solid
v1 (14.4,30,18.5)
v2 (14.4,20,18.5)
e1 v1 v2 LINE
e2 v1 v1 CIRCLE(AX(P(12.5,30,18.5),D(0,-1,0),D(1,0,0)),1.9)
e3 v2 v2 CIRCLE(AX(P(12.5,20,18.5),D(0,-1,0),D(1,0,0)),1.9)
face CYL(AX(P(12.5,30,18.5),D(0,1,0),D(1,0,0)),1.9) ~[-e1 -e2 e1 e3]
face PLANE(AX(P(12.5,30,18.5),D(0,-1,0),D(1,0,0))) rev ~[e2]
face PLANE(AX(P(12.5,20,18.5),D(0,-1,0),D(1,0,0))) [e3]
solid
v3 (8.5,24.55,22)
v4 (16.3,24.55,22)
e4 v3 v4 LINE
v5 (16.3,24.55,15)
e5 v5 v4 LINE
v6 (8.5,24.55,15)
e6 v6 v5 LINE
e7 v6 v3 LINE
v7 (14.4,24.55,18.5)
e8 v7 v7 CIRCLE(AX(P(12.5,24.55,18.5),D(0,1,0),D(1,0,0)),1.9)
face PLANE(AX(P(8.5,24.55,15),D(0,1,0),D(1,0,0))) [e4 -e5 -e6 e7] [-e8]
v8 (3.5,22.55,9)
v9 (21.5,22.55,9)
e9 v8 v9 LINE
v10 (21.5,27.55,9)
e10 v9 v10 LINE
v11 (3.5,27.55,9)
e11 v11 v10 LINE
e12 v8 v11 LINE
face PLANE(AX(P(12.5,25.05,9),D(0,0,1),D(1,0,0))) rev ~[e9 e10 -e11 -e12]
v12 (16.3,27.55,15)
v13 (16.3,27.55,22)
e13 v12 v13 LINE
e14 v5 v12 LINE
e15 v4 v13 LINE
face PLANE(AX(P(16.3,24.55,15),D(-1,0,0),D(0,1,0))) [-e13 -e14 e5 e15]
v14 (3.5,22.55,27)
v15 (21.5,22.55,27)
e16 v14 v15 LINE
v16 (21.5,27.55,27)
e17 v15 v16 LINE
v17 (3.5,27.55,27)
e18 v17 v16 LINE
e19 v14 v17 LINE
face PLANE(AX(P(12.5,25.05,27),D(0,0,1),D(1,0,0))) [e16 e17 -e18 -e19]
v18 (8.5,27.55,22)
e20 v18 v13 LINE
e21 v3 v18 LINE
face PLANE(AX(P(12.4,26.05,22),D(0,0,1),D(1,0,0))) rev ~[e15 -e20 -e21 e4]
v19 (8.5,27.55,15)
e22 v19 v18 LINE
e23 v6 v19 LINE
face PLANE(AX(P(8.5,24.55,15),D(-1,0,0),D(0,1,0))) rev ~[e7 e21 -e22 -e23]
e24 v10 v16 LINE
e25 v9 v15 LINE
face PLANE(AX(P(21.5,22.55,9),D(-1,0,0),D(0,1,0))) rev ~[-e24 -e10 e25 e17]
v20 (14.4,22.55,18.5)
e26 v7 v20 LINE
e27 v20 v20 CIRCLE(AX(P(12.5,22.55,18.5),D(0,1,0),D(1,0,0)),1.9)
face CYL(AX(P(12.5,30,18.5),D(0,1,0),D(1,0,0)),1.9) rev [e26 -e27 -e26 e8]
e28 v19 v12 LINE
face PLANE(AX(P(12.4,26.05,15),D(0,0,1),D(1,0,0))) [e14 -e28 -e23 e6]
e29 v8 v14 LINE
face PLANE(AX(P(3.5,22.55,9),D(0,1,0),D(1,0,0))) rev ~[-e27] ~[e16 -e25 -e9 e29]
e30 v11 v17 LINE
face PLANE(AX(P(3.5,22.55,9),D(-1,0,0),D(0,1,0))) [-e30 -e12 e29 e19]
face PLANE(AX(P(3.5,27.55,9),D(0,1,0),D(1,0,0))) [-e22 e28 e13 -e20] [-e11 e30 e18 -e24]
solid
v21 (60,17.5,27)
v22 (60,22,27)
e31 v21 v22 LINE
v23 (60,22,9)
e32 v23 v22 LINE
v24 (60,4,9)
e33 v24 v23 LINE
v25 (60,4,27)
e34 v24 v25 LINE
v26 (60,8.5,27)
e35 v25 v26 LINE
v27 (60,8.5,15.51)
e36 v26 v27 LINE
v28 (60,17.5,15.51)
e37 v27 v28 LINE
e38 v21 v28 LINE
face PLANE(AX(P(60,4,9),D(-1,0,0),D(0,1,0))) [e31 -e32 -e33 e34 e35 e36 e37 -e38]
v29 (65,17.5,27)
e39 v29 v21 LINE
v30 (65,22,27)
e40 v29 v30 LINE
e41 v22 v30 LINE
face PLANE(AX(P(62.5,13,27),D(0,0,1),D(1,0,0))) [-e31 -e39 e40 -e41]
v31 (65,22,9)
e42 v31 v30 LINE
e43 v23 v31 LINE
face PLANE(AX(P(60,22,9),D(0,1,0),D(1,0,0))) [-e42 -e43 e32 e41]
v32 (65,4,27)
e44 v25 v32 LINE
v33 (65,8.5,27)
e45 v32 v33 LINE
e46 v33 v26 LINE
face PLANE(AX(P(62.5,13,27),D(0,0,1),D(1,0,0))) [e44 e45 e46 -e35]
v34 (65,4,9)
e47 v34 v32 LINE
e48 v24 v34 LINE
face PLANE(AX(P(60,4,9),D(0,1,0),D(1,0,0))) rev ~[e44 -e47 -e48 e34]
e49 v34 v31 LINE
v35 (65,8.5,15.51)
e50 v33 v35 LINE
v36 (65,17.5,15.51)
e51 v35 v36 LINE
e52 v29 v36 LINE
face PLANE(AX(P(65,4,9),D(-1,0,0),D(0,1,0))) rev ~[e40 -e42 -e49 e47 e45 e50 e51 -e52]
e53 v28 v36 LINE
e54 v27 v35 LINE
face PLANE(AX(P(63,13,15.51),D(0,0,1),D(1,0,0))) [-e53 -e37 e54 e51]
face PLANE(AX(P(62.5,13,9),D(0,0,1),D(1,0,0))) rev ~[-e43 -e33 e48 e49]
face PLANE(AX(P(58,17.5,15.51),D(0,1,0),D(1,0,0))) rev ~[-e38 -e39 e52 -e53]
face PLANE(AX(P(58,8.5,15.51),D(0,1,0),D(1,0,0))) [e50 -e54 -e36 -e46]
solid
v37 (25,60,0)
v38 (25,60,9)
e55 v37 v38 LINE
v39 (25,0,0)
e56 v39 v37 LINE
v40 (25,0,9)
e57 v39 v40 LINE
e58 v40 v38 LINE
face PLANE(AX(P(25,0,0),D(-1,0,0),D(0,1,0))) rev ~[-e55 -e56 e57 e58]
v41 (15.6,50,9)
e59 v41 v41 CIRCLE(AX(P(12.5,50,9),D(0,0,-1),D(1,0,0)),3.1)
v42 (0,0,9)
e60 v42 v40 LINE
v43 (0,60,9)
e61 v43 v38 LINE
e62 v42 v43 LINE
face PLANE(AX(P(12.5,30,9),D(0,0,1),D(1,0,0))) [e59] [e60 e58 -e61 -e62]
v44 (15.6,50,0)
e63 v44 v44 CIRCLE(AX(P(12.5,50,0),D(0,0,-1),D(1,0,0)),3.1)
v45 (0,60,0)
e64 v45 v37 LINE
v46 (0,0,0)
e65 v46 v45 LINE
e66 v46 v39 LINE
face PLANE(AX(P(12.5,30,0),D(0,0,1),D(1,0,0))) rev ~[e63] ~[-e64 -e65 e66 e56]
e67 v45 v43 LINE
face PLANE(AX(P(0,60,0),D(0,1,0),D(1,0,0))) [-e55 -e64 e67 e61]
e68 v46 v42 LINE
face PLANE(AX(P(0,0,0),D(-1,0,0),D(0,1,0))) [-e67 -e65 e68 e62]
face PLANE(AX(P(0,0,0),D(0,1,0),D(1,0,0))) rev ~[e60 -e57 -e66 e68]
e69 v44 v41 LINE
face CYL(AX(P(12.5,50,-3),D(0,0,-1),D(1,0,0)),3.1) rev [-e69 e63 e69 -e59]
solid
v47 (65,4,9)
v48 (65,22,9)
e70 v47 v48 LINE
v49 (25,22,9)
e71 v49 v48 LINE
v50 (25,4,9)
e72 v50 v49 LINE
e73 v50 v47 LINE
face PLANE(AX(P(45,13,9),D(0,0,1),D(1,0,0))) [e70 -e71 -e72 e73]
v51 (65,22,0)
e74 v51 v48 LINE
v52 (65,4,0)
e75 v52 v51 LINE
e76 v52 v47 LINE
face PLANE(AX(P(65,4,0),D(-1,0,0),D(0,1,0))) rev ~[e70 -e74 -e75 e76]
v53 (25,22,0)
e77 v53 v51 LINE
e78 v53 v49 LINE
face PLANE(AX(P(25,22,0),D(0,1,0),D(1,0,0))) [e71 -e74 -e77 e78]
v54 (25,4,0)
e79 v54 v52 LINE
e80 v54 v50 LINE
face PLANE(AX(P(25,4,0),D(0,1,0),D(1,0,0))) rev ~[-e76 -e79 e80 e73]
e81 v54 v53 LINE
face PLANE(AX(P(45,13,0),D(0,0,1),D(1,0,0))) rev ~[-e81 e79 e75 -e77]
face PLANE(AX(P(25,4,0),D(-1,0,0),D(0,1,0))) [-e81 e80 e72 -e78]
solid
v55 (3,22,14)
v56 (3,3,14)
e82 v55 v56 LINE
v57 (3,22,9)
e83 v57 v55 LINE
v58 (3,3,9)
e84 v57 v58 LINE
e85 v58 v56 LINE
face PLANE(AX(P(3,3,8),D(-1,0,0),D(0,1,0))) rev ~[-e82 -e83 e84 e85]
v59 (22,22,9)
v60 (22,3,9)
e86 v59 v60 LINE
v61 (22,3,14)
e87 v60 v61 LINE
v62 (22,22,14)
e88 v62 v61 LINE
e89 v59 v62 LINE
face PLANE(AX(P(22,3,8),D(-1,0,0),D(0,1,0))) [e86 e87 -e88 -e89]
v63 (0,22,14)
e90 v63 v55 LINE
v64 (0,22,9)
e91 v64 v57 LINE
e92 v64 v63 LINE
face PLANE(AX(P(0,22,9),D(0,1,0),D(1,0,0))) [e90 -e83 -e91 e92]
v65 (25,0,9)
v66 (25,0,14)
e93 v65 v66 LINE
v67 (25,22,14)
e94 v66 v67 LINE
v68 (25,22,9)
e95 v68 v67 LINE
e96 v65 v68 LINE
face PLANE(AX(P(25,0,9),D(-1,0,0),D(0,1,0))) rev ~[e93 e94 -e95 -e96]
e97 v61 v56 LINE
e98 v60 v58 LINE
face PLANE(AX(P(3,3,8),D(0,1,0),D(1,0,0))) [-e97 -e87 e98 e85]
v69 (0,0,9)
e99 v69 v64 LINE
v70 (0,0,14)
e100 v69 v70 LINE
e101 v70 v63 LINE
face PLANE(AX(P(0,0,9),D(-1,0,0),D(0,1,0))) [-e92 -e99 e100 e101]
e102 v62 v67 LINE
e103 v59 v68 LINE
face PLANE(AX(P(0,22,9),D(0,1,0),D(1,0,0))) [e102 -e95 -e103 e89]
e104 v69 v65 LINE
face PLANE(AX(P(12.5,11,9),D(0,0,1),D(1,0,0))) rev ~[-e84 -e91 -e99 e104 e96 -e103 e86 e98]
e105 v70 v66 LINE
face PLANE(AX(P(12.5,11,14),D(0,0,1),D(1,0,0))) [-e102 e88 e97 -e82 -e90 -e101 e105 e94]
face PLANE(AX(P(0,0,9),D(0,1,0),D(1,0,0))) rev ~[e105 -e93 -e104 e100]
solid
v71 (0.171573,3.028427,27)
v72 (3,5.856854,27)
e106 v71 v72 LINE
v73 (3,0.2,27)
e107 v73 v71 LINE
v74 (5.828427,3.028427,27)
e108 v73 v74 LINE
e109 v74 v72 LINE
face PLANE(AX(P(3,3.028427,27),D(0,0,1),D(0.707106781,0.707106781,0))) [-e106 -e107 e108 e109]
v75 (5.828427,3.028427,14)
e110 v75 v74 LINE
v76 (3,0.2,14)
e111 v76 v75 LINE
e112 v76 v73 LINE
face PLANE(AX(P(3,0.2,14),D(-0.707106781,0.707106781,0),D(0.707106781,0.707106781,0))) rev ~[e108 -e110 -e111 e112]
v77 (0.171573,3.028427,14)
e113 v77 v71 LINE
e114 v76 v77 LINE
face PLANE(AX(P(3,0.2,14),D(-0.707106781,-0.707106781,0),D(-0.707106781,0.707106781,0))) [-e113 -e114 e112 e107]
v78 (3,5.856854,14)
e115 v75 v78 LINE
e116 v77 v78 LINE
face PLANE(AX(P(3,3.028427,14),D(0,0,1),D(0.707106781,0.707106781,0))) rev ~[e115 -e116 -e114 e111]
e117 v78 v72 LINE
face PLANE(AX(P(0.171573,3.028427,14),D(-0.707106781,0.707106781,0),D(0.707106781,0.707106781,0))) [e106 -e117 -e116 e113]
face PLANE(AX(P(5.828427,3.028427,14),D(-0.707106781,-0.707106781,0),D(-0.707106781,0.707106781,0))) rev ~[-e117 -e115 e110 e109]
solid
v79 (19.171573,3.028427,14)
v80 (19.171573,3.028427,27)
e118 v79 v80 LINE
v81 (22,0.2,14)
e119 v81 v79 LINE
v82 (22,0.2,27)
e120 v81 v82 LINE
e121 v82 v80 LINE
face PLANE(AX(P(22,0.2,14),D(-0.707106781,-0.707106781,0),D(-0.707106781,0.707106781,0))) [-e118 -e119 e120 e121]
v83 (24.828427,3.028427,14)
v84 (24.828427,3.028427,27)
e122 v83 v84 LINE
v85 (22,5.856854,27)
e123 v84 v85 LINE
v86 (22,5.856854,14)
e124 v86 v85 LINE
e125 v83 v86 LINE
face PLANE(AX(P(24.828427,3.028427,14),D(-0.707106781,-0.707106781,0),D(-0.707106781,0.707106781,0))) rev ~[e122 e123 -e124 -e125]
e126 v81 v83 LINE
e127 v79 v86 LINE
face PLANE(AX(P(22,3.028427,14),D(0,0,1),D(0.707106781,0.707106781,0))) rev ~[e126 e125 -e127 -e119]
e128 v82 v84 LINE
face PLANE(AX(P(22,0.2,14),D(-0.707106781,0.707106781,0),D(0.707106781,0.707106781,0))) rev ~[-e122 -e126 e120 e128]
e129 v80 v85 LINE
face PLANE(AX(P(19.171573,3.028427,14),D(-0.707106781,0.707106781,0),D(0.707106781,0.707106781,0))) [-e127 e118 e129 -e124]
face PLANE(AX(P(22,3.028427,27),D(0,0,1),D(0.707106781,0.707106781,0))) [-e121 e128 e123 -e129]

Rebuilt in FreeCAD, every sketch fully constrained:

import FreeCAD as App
import Part
import Sketcher

V = App.Vector

doc = App.newDocument("Part")
body = doc.addObject("PartDesign::Body", "Body")

sketch1 = body.newObject("Sketcher::SketchObject", "Sketch")
sketch1.AttachmentSupport = (doc.getObject("XY_Plane"), [""])
sketch1.MapMode = "FlatFace"
sketch1.AttachmentOffset = App.Placement(V(0, 0, 8), App.Rotation())
sketch1.addGeometry([
    Part.LineSegment(V(3, 25, 0), V(3, 3, 0)),
    Part.LineSegment(V(3, 3, 0), V(22, 3, 0)),
    Part.LineSegment(V(22, 3, 0), V(22, 25, 0)),
    Part.LineSegment(V(22, 25, 0), V(3, 25, 0)),
], False)
sketch1.addConstraint([
    Sketcher.Constraint("Coincident", 0, 2, 1, 1),
    Sketcher.Constraint("Coincident", 1, 2, 2, 1),
    Sketcher.Constraint("Coincident", 2, 2, 3, 1),
    Sketcher.Constraint("Coincident", 3, 2, 0, 1),
    Sketcher.Constraint("Vertical", 0),
    Sketcher.Constraint("Horizontal", 1),
    Sketcher.Constraint("Vertical", 2),
    Sketcher.Constraint("Horizontal", 3),
    Sketcher.Constraint("DistanceX", 1, 1, 1, 2, 19.0),
    Sketcher.Constraint("DistanceY", 0, 2, 0, 1, 22.0),
    Sketcher.Constraint("DistanceX", -1, 1, 0, 2, 3.0),
    Sketcher.Constraint("DistanceY", -1, 1, 0, 2, 3.0),
])
pad1 = body.newObject("PartDesign::Pad", "Pad")
pad1.Profile = sketch1
pad1.Length = 10
body2 = doc.addObject("PartDesign::Body", "Body001")

sketch2 = body2.newObject("Sketcher::SketchObject", "Sketch001")
sketch2.AttachmentSupport = (doc.getObject("XY_Plane001"), [""])
sketch2.MapMode = "FlatFace"
sketch2.AttachmentOffset = App.Placement(V(0, 0, 9), App.Rotation())
sketch2.addGeometry([
    Part.LineSegment(V(0, 22, 0), V(0, 0, 0)),
    Part.LineSegment(V(0, 0, 0), V(25, 0, 0)),
    Part.LineSegment(V(25, 0, 0), V(25, 22, 0)),
    Part.LineSegment(V(25, 22, 0), V(0, 22, 0)),
], False)
sketch2.addConstraint([
    Sketcher.Constraint("Coincident", 0, 2, 1, 1),
    Sketcher.Constraint("Coincident", 1, 2, 2, 1),
    Sketcher.Constraint("Coincident", 2, 2, 3, 1),
    Sketcher.Constraint("Coincident", 3, 2, 0, 1),
    Sketcher.Constraint("Vertical", 0),
    Sketcher.Constraint("Horizontal", 1),
    Sketcher.Constraint("Vertical", 2),
    Sketcher.Constraint("Horizontal", 3),
    Sketcher.Constraint("Coincident", 0, 2, -1, 1),
    Sketcher.Constraint("DistanceX", 1, 1, 1, 2, 25.0),
    Sketcher.Constraint("DistanceY", 0, 2, 0, 1, 22.0),
])
pad2 = body2.newObject("PartDesign::Pad", "Pad001")
pad2.Profile = sketch2
pad2.Length = 5
doc.recompute()

boolean = body2.newObject("PartDesign::Boolean", "Boolean")
boolean.Type = "Cut"
boolean.addObjects([body])
body3 = doc.addObject("PartDesign::Body", "Body002")

sketch3 = body3.newObject("Sketcher::SketchObject", "Sketch002")
sketch3.AttachmentSupport = (doc.getObject("XY_Plane002"), [""])
sketch3.MapMode = "FlatFace"
sketch3.AttachmentOffset = App.Placement(V(0, 0, -3), App.Rotation())
sketch3.addGeometry(Part.Circle(V(12.5, 50, 0), V(0, 0, 1), 3.1), False)
sketch3.addConstraint([
    Sketcher.Constraint("Diameter", 0, 6.2),
    Sketcher.Constraint("DistanceY", -1, 1, 0, 3, 50.0),
    Sketcher.Constraint("DistanceX", -1, 1, 0, 3, 12.5),
])
pad3 = body3.newObject("PartDesign::Pad", "Pad002")
pad3.Profile = sketch3
pad3.Length = 15
body4 = doc.addObject("PartDesign::Body", "Body003")

sketch4 = body4.newObject("Sketcher::SketchObject", "Sketch003")
sketch4.AttachmentSupport = (doc.getObject("XY_Plane003"), [""])
sketch4.MapMode = "FlatFace"
sketch4.addGeometry([
    Part.LineSegment(V(0, 60, 0), V(0, 0, 0)),
    Part.LineSegment(V(0, 0, 0), V(25, 0, 0)),
    Part.LineSegment(V(25, 0, 0), V(25, 60, 0)),
    Part.LineSegment(V(25, 60, 0), V(0, 60, 0)),
], False)
sketch4.addConstraint([
    Sketcher.Constraint("Coincident", 0, 2, 1, 1),
    Sketcher.Constraint("Coincident", 1, 2, 2, 1),
    Sketcher.Constraint("Coincident", 2, 2, 3, 1),
    Sketcher.Constraint("Coincident", 3, 2, 0, 1),
    Sketcher.Constraint("Vertical", 0),
    Sketcher.Constraint("Horizontal", 1),
    Sketcher.Constraint("Vertical", 2),
    Sketcher.Constraint("Horizontal", 3),
    Sketcher.Constraint("Coincident", 0, 2, -1, 1),
    Sketcher.Constraint("DistanceX", 1, 1, 1, 2, 25.0),
    Sketcher.Constraint("DistanceY", 0, 2, 0, 1, 60.0),
])
pad4 = body4.newObject("PartDesign::Pad", "Pad003")
pad4.Profile = sketch4
pad4.Length = 9
doc.recompute()

boolean2 = body4.newObject("PartDesign::Boolean", "Boolean001")
boolean2.Type = "Cut"
boolean2.addObjects([body3])
body5 = doc.addObject("PartDesign::Body", "Body004")

sketch5 = body5.newObject("Sketcher::SketchObject", "Sketch004")
sketch5.AttachmentSupport = (doc.getObject("XY_Plane004"), [""])
sketch5.MapMode = "FlatFace"
sketch5.addGeometry([
    Part.LineSegment(V(0, 4, 0), V(0, 0, 0)),
    Part.LineSegment(V(0, 0, 0), V(4, 0, 0)),
    Part.LineSegment(V(4, 0, 0), V(4, 4, 0)),
    Part.LineSegment(V(4, 4, 0), V(0, 4, 0)),
], False)
sketch5.addConstraint([
    Sketcher.Constraint("Coincident", 0, 2, 1, 1),
    Sketcher.Constraint("Coincident", 1, 2, 2, 1),
    Sketcher.Constraint("Coincident", 2, 2, 3, 1),
    Sketcher.Constraint("Coincident", 3, 2, 0, 1),
    Sketcher.Constraint("Vertical", 0),
    Sketcher.Constraint("Horizontal", 1),
    Sketcher.Constraint("Vertical", 2),
    Sketcher.Constraint("Horizontal", 3),
    Sketcher.Constraint("Coincident", 0, 2, -1, 1),
    Sketcher.Constraint("Equal", 3, 0),
    Sketcher.Constraint("DistanceX", 1, 1, 1, 2, 4.0),
])
pad5 = body5.newObject("PartDesign::Pad", "Pad004")
pad5.Profile = sketch5
pad5.Length = 13
body6 = doc.addObject("PartDesign::Body", "Body005")
doc.recompute()

body5.Placement = App.Placement(V(3, 0.2, 14), App.Rotation(V(0, 0, 1), 45))
boolean3 = body6.newObject("PartDesign::Boolean", "Boolean002")
boolean3.Type = "Fuse"
boolean3.addObjects([body5])
body7 = doc.addObject("PartDesign::Body", "Body006")

sketch6 = body7.newObject("Sketcher::SketchObject", "Sketch005")
sketch6.AttachmentSupport = (doc.getObject("XY_Plane006"), [""])
sketch6.MapMode = "FlatFace"
sketch6.addGeometry([
    Part.LineSegment(V(0, 4, 0), V(0, 0, 0)),
    Part.LineSegment(V(0, 0, 0), V(4, 0, 0)),
    Part.LineSegment(V(4, 0, 0), V(4, 4, 0)),
    Part.LineSegment(V(4, 4, 0), V(0, 4, 0)),
], False)
sketch6.addConstraint([
    Sketcher.Constraint("Coincident", 0, 2, 1, 1),
    Sketcher.Constraint("Coincident", 1, 2, 2, 1),
    Sketcher.Constraint("Coincident", 2, 2, 3, 1),
    Sketcher.Constraint("Coincident", 3, 2, 0, 1),
    Sketcher.Constraint("Vertical", 0),
    Sketcher.Constraint("Horizontal", 1),
    Sketcher.Constraint("Vertical", 2),
    Sketcher.Constraint("Horizontal", 3),
    Sketcher.Constraint("Coincident", 0, 2, -1, 1),
    Sketcher.Constraint("Equal", 3, 0),
    Sketcher.Constraint("DistanceX", 1, 1, 1, 2, 4.0),
])
pad6 = body7.newObject("PartDesign::Pad", "Pad005")
pad6.Profile = sketch6
pad6.Length = 13
body8 = doc.addObject("PartDesign::Body", "Body007")
doc.recompute()

body7.Placement = App.Placement(V(22, 0.2, 14), App.Rotation(V(0, 0, 1), 45))
boolean4 = body8.newObject("PartDesign::Boolean", "Boolean003")
boolean4.Type = "Fuse"
boolean4.addObjects([body7])
body9 = doc.addObject("PartDesign::Body", "Body008")

sketch7 = body9.newObject("Sketcher::SketchObject", "Sketch006")
sketch7.AttachmentSupport = (doc.getObject("XZ_Plane008"), [""])
sketch7.MapMode = "FlatFace"
sketch7.AttachmentOffset = App.Placement(V(0, 0, -30), App.Rotation())
sketch7.addGeometry(Part.Circle(V(12.5, 18.5, 0), V(0, 0, 1), 1.9), False)
sketch7.addConstraint([
    Sketcher.Constraint("Diameter", 0, 3.8),
    Sketcher.Constraint("DistanceX", -1, 1, 0, 3, 12.5),
    Sketcher.Constraint("DistanceY", -1, 1, 0, 3, 18.5),
])
pad7 = body9.newObject("PartDesign::Pad", "Pad006")
pad7.Profile = sketch7
pad7.Length = 10
body10 = doc.addObject("PartDesign::Body", "Body009")

sketch8 = body10.newObject("Sketcher::SketchObject", "Sketch007")
sketch8.AttachmentSupport = (doc.getObject("XY_Plane009"), [""])
sketch8.MapMode = "FlatFace"
sketch8.AttachmentOffset = App.Placement(V(0, 0, 15), App.Rotation())
sketch8.addGeometry([
    Part.LineSegment(V(8.5, 27.6, 0), V(8.5, 24.6, 0)),
    Part.LineSegment(V(8.5, 24.6, 0), V(16.3, 24.6, 0)),
    Part.LineSegment(V(16.3, 24.6, 0), V(16.3, 27.6, 0)),
    Part.LineSegment(V(16.3, 27.6, 0), V(8.5, 27.6, 0)),
], False)
sketch8.addConstraint([
    Sketcher.Constraint("Coincident", 0, 2, 1, 1),
    Sketcher.Constraint("Coincident", 1, 2, 2, 1),
    Sketcher.Constraint("Coincident", 2, 2, 3, 1),
    Sketcher.Constraint("Coincident", 3, 2, 0, 1),
    Sketcher.Constraint("Vertical", 0),
    Sketcher.Constraint("Horizontal", 1),
    Sketcher.Constraint("Vertical", 2),
    Sketcher.Constraint("Horizontal", 3),
    Sketcher.Constraint("DistanceY", 0, 2, 0, 1, 3.0),
    Sketcher.Constraint("DistanceX", 1, 1, 1, 2, 7.8),
    Sketcher.Constraint("DistanceX", -1, 1, 0, 2, 8.5),
    Sketcher.Constraint("DistanceY", -1, 1, 0, 2, 24.55),
])
pad8 = body10.newObject("PartDesign::Pad", "Pad007")
pad8.Profile = sketch8
pad8.Length = 7
body11 = doc.addObject("PartDesign::Body", "Body010")

sketch9 = body11.newObject("Sketcher::SketchObject", "Sketch008")
sketch9.AttachmentSupport = (doc.getObject("XY_Plane010"), [""])
sketch9.MapMode = "FlatFace"
sketch9.AttachmentOffset = App.Placement(V(0, 0, 9), App.Rotation())
sketch9.addGeometry([
    Part.LineSegment(V(4, 28, 0), V(4, 23, 0)),
    Part.LineSegment(V(4, 23, 0), V(22, 23, 0)),
    Part.LineSegment(V(22, 23, 0), V(22, 28, 0)),
    Part.LineSegment(V(22, 28, 0), V(4, 28, 0)),
], False)
sketch9.addConstraint([
    Sketcher.Constraint("Coincident", 0, 2, 1, 1),
    Sketcher.Constraint("Coincident", 1, 2, 2, 1),
    Sketcher.Constraint("Coincident", 2, 2, 3, 1),
    Sketcher.Constraint("Coincident", 3, 2, 0, 1),
    Sketcher.Constraint("Vertical", 0),
    Sketcher.Constraint("Horizontal", 1),
    Sketcher.Constraint("Vertical", 2),
    Sketcher.Constraint("Horizontal", 3),
    Sketcher.Constraint("DistanceX", 1, 1, 1, 2, 18.0),
    Sketcher.Constraint("DistanceY", 0, 2, 0, 1, 5.0),
    Sketcher.Constraint("DistanceX", -1, 1, 0, 2, 3.5),
    Sketcher.Constraint("DistanceY", -1, 1, 0, 2, 22.55),
])
pad9 = body11.newObject("PartDesign::Pad", "Pad008")
pad9.Profile = sketch9
pad9.Length = 18
doc.recompute()

boolean5 = body11.newObject("PartDesign::Boolean", "Boolean004")
boolean5.Type = "Cut"
boolean5.addObjects([body10])
doc.recompute()

boolean6 = body11.newObject("PartDesign::Boolean", "Boolean005")
boolean6.Type = "Cut"
boolean6.addObjects([body9])
body12 = doc.addObject("PartDesign::Body", "Body011")

sketch10 = body12.newObject("Sketcher::SketchObject", "Sketch009")
sketch10.AttachmentSupport = (doc.getObject("XZ_Plane011"), [""])
sketch10.MapMode = "FlatFace"
sketch10.AttachmentOffset = App.Placement(V(0, 0, -30), App.Rotation())
sketch10.addGeometry(Part.Circle(V(12.5, 18.5, 0), V(0, 0, 1), 1.9), False)
sketch10.addConstraint([
    Sketcher.Constraint("Diameter", 0, 3.8),
    Sketcher.Constraint("DistanceX", -1, 1, 0, 3, 12.5),
    Sketcher.Constraint("DistanceY", -1, 1, 0, 3, 18.5),
])
pad10 = body12.newObject("PartDesign::Pad", "Pad009")
pad10.Profile = sketch10
pad10.Length = 10
body13 = doc.addObject("PartDesign::Body", "Body012")

sketch11 = body13.newObject("Sketcher::SketchObject", "Sketch010")
sketch11.AttachmentSupport = (doc.getObject("XY_Plane012"), [""])
sketch11.MapMode = "FlatFace"
sketch11.addGeometry([
    Part.LineSegment(V(25, 22, 0), V(25, 4, 0)),
    Part.LineSegment(V(25, 4, 0), V(65, 4, 0)),
    Part.LineSegment(V(65, 4, 0), V(65, 22, 0)),
    Part.LineSegment(V(65, 22, 0), V(25, 22, 0)),
], False)
sketch11.addConstraint([
    Sketcher.Constraint("Coincident", 0, 2, 1, 1),
    Sketcher.Constraint("Coincident", 1, 2, 2, 1),
    Sketcher.Constraint("Coincident", 2, 2, 3, 1),
    Sketcher.Constraint("Coincident", 3, 2, 0, 1),
    Sketcher.Constraint("Vertical", 0),
    Sketcher.Constraint("Horizontal", 1),
    Sketcher.Constraint("Vertical", 2),
    Sketcher.Constraint("Horizontal", 3),
    Sketcher.Constraint("DistanceX", 1, 1, 1, 2, 40.0),
    Sketcher.Constraint("DistanceY", 0, 2, 0, 1, 18.0),
    Sketcher.Constraint("DistanceX", -1, 1, 0, 2, 25.0),
    Sketcher.Constraint("DistanceY", -1, 1, 0, 2, 4.0),
])
pad11 = body13.newObject("PartDesign::Pad", "Pad010")
pad11.Profile = sketch11
pad11.Length = 9
body14 = doc.addObject("PartDesign::Body", "Body013")

sketch12 = body14.newObject("Sketcher::SketchObject", "Sketch011")
sketch12.AttachmentSupport = (doc.getObject("XY_Plane013"), [""])
sketch12.MapMode = "FlatFace"
sketch12.AttachmentOffset = App.Placement(V(0, 0, 15.51), App.Rotation())
sketch12.addGeometry([
    Part.LineSegment(V(58, 14, 0), V(58, 4, 0)),
    Part.LineSegment(V(58, 4, 0), V(68, 4, 0)),
    Part.LineSegment(V(68, 4, 0), V(68, 14, 0)),
    Part.LineSegment(V(68, 14, 0), V(58, 14, 0)),
], False)
sketch12.addConstraint([
    Sketcher.Constraint("Coincident", 0, 2, 1, 1),
    Sketcher.Constraint("Coincident", 1, 2, 2, 1),
    Sketcher.Constraint("Coincident", 2, 2, 3, 1),
    Sketcher.Constraint("Coincident", 3, 2, 0, 1),
    Sketcher.Constraint("Vertical", 0),
    Sketcher.Constraint("Horizontal", 1),
    Sketcher.Constraint("Vertical", 2),
    Sketcher.Constraint("Horizontal", 3),
    Sketcher.Constraint("DistanceX", 1, 1, 1, 2, 10.0),
    Sketcher.Constraint("DistanceY", 0, 2, 0, 1, 9.0),
    Sketcher.Constraint("DistanceX", -1, 1, 0, 2, 58.0),
    Sketcher.Constraint("DistanceY", -1, 1, 0, 2, 4.5),
])
pad12 = body14.newObject("PartDesign::Pad", "Pad011")
pad12.Profile = sketch12
pad12.Length = 15
body15 = doc.addObject("PartDesign::Body", "Body014")

sketch13 = body15.newObject("Sketcher::SketchObject", "Sketch012")
sketch13.AttachmentSupport = (doc.getObject("XY_Plane014"), [""])
sketch13.MapMode = "FlatFace"
sketch13.AttachmentOffset = App.Placement(V(0, 0, 9), App.Rotation())
sketch13.addGeometry([
    Part.LineSegment(V(60, 18, 0), V(60, 0, 0)),
    Part.LineSegment(V(60, 0, 0), V(65, 0, 0)),
    Part.LineSegment(V(65, 0, 0), V(65, 18, 0)),
    Part.LineSegment(V(65, 18, 0), V(60, 18, 0)),
], False)
sketch13.addConstraint([
    Sketcher.Constraint("Coincident", 0, 2, 1, 1),
    Sketcher.Constraint("Coincident", 1, 2, 2, 1),
    Sketcher.Constraint("Coincident", 2, 2, 3, 1),
    Sketcher.Constraint("Coincident", 3, 2, 0, 1),
    Sketcher.Constraint("Vertical", 0),
    Sketcher.Constraint("Horizontal", 1),
    Sketcher.Constraint("Vertical", 2),
    Sketcher.Constraint("Horizontal", 3),
    Sketcher.Constraint("PointOnObject", 0, 2, -1),
    Sketcher.Constraint("DistanceX", 1, 1, 1, 2, 5.0),
    Sketcher.Constraint("DistanceY", 0, 2, 0, 1, 18.0),
    Sketcher.Constraint("DistanceX", -1, 1, 0, 2, 60.0),
])
pad13 = body15.newObject("PartDesign::Pad", "Pad012")
pad13.Profile = sketch13
pad13.Length = 18
doc.recompute()

boolean7 = body15.newObject("PartDesign::Boolean", "Boolean006")
boolean7.Type = "Cut"
boolean7.addObjects([body14])
body16 = doc.addObject("PartDesign::Body", "Body015")
doc.recompute()

body15.Placement = App.Placement(V(0, 4, 0), App.Rotation(V(0, 0, 1), 0))
boolean8 = body16.newObject("PartDesign::Boolean", "Boolean007")
boolean8.Type = "Fuse"
boolean8.addObjects([body15])

doc.recompute()
